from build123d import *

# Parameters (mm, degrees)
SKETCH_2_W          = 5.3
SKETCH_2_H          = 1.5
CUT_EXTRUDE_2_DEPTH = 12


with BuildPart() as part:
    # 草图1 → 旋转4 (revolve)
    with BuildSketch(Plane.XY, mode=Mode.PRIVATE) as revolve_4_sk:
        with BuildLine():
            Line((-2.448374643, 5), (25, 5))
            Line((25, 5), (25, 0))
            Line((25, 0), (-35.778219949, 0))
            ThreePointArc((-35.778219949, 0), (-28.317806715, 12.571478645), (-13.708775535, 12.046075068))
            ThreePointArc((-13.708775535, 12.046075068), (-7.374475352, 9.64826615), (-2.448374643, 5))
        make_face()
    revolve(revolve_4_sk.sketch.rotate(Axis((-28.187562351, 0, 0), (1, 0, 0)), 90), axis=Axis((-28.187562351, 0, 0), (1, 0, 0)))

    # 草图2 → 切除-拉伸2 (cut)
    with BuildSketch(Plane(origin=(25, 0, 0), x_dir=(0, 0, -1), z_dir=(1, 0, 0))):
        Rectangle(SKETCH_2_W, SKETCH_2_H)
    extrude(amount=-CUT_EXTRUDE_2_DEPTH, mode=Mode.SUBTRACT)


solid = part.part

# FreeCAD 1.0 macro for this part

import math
import FreeCAD as App
import Part
import Sketcher


def add_polygon(sketch, points):
    """Adds a closed chain of lines whose ends are joined by coincident constraints."""
    first, n = sketch.GeometryCount, len(points)
    for a, b in zip(points, points[1:] + points[:1]):
        sketch.addGeometry(Part.LineSegment(App.Vector(*a, 0), App.Vector(*b, 0)), False)
    for i in range(n):
        sketch.addConstraint(Sketcher.Constraint("Coincident", first + i, 2, first + (i + 1) % n, 1))

doc = App.newDocument("Part")
params = doc.addObject("Spreadsheet::Sheet", "Params")
for row, (alias, value) in enumerate([
    ("sketch1_height", "5 mm"),
    ("revolution_angle", "360 deg"),
    ("sketch2_width", "1.5 mm"),
    ("sketch2_height", "5.3 mm"),
    ("pocket1_length", "12 mm"),
], start=1):
    params.set(f"A{row}", alias)
    params.set(f"B{row}", "=" + value)
    params.setAlias(f"B{row}", alias)

body = doc.addObject("PartDesign::Body", "Body")

# Sketch on XY plane
sketch1 = body.newObject("Sketcher::SketchObject", "Sketch")
sketch1.AttachmentSupport = (doc.getObject("XY_Plane"), [""])
sketch1.MapMode = "FlatFace"
sketch1.addGeometry([
    Part.LineSegment(App.Vector(25, 5, 0), App.Vector(-2, 5, 0)),  # 0
    Part.ArcOfCircle(Part.Circle(App.Vector(-17, -5, 0), App.Vector(0, 0, 1), 17), math.radians(35), math.radians(81)),  # 1
    Part.ArcOfCircle(Part.Circle(App.Vector(-21, 0, 0), App.Vector(0, 0, 1), 14), math.radians(57), math.radians(180)),  # 2
    Part.LineSegment(App.Vector(-36, 0, 0), App.Vector(25, 0, 0)),  # 3
    Part.LineSegment(App.Vector(25, 0, 0), App.Vector(25, 5, 0)),  # 4
], False)
sketch1.addConstraint([
    Sketcher.Constraint("Coincident", 0, 2, 1, 1),
    Sketcher.Constraint("Coincident", 1, 2, 2, 1),
    Sketcher.Constraint("Coincident", 2, 2, 3, 1),
    Sketcher.Constraint("Coincident", 3, 2, 4, 1),
    Sketcher.Constraint("Coincident", 4, 2, 0, 1),
    Sketcher.Constraint("Horizontal", 0),
    Sketcher.Constraint("Horizontal", 3),
    Sketcher.Constraint("Vertical", 4),
    Sketcher.Constraint("PointOnObject", 2, 3, -1),
    Sketcher.Constraint("PointOnObject", 2, 2, -1),
    Sketcher.Constraint("DistanceY", 4, 1, 4, 2, 5.0),
    Sketcher.Constraint("DistanceY", 1, 3, -1, 1, 5.0),
    Sketcher.Constraint("DistanceX", -1, 1, 3, 2, 25.0),
    Sketcher.Constraint("Radius", 1, 17.279675),
    Sketcher.Constraint("Radius", 2, 14.322252),
    Sketcher.Constraint("DistanceX", 3, 1, 3, 2, 60.77822),
    Sketcher.Constraint("DistanceX", 1, 2, 0, 2, 11.260401),
])
sketch1.setExpression("Constraints[10]", "Params.sketch1_height")
revolution = body.newObject("PartDesign::Revolution", "Revolution")
revolution.Profile = sketch1
revolution.ReferenceAxis = (sketch1, ["H_Axis"])
revolution.setExpression("Angle", "Params.revolution_angle")

# Sketch on YZ plane
sketch2 = body.newObject("Sketcher::SketchObject", "Sketch001")
sketch2.AttachmentSupport = (doc.getObject("YZ_Plane"), [""])
sketch2.MapMode = "FlatFace"
sketch2.AttachmentOffset = App.Placement(App.Vector(0, 0, 25), App.Rotation())
add_polygon(sketch2, [(0.8, 2.6), (-0.8, 2.6), (-0.8, -2.6), (0.8, -2.6)])  # lines 0-3
sketch2.addConstraint([
    Sketcher.Constraint("Horizontal", 0),
    Sketcher.Constraint("Vertical", 1),
    Sketcher.Constraint("Horizontal", 2),
    Sketcher.Constraint("Vertical", 3),
    Sketcher.Constraint("Symmetric", 0, 2, 2, 2, -1, 1),
    Sketcher.Constraint("DistanceX", 0, 2, 0, 1, 1.5),
    Sketcher.Constraint("DistanceY", 1, 2, 1, 1, 5.3),
])
sketch2.setExpression("Constraints[9]", "Params.sketch2_width")
sketch2.setExpression("Constraints[10]", "Params.sketch2_height")
pocket1 = body.newObject("PartDesign::Pocket", "Pocket")
pocket1.Profile = sketch2
pocket1.setExpression("Length", "Params.pocket1_length")

doc.recompute()
